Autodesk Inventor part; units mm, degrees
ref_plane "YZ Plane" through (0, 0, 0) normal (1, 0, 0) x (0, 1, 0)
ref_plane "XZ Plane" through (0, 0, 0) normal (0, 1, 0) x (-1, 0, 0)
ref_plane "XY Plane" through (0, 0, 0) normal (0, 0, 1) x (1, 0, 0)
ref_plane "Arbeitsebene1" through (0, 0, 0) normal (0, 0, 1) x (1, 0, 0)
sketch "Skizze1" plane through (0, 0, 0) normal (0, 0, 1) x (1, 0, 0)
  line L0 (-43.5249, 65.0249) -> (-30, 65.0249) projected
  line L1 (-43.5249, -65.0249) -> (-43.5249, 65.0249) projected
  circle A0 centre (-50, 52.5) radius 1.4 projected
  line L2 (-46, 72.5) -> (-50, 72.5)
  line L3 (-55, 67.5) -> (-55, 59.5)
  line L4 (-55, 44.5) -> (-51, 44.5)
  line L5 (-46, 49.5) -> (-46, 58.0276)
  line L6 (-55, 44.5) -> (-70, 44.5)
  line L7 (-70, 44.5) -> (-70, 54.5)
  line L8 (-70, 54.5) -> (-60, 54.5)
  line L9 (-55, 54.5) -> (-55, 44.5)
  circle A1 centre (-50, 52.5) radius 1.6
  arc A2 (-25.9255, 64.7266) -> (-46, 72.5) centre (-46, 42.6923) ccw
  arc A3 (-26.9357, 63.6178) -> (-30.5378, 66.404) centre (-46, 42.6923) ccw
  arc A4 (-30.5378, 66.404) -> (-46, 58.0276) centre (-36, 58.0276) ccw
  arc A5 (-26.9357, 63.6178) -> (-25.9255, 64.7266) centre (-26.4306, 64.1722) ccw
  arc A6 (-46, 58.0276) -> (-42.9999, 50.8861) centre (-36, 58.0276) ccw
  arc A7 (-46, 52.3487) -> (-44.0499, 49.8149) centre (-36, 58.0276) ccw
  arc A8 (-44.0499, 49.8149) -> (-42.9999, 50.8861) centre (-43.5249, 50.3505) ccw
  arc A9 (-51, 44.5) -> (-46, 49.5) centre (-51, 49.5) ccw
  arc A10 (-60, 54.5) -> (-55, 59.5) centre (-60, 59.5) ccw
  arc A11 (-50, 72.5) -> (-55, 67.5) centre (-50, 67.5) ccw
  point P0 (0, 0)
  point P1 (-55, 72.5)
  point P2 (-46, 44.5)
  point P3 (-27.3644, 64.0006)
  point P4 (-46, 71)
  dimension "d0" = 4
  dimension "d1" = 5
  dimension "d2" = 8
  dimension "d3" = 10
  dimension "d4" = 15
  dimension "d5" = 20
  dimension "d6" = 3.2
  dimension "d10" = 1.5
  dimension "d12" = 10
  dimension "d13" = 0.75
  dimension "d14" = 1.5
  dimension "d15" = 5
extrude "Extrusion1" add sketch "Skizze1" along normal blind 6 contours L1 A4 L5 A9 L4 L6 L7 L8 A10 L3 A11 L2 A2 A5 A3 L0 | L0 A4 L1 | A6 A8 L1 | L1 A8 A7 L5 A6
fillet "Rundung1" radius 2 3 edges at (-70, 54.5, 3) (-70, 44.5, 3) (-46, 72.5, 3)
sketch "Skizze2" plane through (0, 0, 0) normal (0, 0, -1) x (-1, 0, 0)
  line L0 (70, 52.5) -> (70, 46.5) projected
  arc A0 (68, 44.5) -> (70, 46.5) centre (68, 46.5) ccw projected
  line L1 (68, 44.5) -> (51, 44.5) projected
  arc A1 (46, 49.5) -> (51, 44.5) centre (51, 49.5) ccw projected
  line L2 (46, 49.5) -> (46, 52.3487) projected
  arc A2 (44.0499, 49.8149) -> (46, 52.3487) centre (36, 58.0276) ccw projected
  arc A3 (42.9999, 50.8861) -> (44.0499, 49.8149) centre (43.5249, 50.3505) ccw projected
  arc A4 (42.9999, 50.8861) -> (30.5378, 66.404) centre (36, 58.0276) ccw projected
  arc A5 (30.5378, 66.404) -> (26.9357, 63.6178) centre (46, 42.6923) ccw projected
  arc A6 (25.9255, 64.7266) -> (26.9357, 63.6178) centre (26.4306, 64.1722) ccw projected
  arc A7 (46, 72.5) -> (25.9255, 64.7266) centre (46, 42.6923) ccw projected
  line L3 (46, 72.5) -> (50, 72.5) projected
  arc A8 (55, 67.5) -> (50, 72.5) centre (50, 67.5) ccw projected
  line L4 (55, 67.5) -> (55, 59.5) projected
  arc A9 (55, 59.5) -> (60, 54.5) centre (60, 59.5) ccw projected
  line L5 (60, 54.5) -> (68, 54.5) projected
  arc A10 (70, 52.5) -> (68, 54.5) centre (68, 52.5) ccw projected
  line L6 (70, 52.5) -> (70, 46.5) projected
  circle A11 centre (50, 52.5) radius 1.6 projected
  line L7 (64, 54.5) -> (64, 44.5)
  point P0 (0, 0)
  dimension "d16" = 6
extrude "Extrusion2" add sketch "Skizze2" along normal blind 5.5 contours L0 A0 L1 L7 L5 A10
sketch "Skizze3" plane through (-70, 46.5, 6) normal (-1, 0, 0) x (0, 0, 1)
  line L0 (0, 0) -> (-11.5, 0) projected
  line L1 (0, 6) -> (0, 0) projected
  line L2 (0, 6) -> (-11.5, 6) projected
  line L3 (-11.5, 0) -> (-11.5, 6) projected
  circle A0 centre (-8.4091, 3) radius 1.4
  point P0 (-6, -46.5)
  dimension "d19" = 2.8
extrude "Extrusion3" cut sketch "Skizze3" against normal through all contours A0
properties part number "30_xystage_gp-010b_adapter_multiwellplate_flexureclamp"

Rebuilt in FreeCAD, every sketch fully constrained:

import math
import FreeCAD as App
import Part
import Sketcher


def edges_at(feature, points):
    """Names of the edges that pass closest to the given points."""
    edges = feature.Shape.Edges
    near = lambda p: min(range(len(edges)), key=lambda i: edges[i].distToShape(Part.Vertex(*p))[0])
    return sorted({f"Edge{near(p) + 1}" for p in points})

doc = App.newDocument("Part")
params = doc.addObject("Spreadsheet::Sheet", "Params")
for row, (alias, value) in enumerate([
    ("sketch1_radius", "10 mm"),
    ("sketch1_radius2", "5 mm"),
    ("sketch1_diameter", "3.2 mm"),
    ("sketch1_width", "4 mm"),
    ("sketch1_width2", "10 mm"),
    ("pad1_length", "6 mm"),
    ("fillet_radius", "2 mm"),
    ("sketch2_height", "6 mm"),
    ("sketch2_radius", "2 mm"),
    ("pad2_length", "5.5 mm"),
    ("sketch3_diameter", "2.8 mm"),
], start=1):
    params.set(f"A{row}", alias)
    params.set(f"B{row}", "=" + value)
    params.setAlias(f"B{row}", alias)

body = doc.addObject("PartDesign::Body", "Body")

# Sketch on XY plane
sketch1 = body.newObject("Sketcher::SketchObject", "Sketch")
sketch1.AttachmentSupport = (doc.getObject("XY_Plane"), [""])
sketch1.MapMode = "FlatFace"
sketch1.addGeometry(Part.ArcOfCircle(Part.Circle(App.Vector(-36, 58, 0), App.Vector(0, 0, 1), 10), math.radians(57), math.radians(180)), False)
sketch1.addGeometry(Part.ArcOfCircle(Part.Circle(App.Vector(-46, 42.7, 0), App.Vector(0, 0, 1), 28.3), math.radians(47.66), math.radians(56.89)), False)
sketch1.addGeometry(Part.ArcOfCircle(Part.Circle(App.Vector(-26.4, 64.2, 0), App.Vector(0, 0, 1), 0.7), math.radians(-132), math.radians(48)), False)
sketch1.addGeometry(Part.ArcOfCircle(Part.Circle(App.Vector(-46, 42.7, 0), App.Vector(0, 0, 1), 29.8), math.radians(48), math.radians(90)), False)
sketch1.addGeometry(Part.LineSegment(App.Vector(-46, 72.5, 0), App.Vector(-50, 72.5, 0)), False)
sketch1.addGeometry(Part.ArcOfCircle(Part.Circle(App.Vector(-50, 67.5, 0), App.Vector(0, 0, 1), 5), math.radians(90), math.radians(180)), False)
sketch1.addGeometry(Part.LineSegment(App.Vector(-55, 67.5, 0), App.Vector(-55, 59.5, 0)), False)
sketch1.addGeometry(Part.ArcOfCircle(Part.Circle(App.Vector(-60, 59.5, 0), App.Vector(0, 0, 1), 5), math.radians(-90), math.radians(0)), False)
sketch1.addGeometry(Part.LineSegment(App.Vector(-60, 54.5, 0), App.Vector(-70, 54.5, 0)), False)
sketch1.addGeometry(Part.LineSegment(App.Vector(-70, 54.5, 0), App.Vector(-70, 44.5, 0)), False)
sketch1.addGeometry(Part.LineSegment(App.Vector(-70, 44.5, 0), App.Vector(-51, 44.5, 0)), False)
sketch1.addGeometry(Part.ArcOfCircle(Part.Circle(App.Vector(-51, 49.5, 0), App.Vector(0, 0, 1), 5), math.radians(-90), math.radians(0)), False)
sketch1.addGeometry(Part.LineSegment(App.Vector(-46, 49.5, 0), App.Vector(-46, 52.3, 0)), False)
sketch1.addGeometry(Part.ArcOfCircle(Part.Circle(App.Vector(-36, 58, 0), App.Vector(0, 0, 1), 11.5), math.radians(-150.41), math.radians(-134.43)), False)
sketch1.addGeometry(Part.ArcOfCircle(Part.Circle(App.Vector(-43.5, 50.4, 0), App.Vector(0, 0, 1), 0.7), math.radians(-134), math.radians(46)), False)
sketch1.addGeometry(Part.ArcOfCircle(Part.Circle(App.Vector(-36, 58, 0), App.Vector(0, 0, 1), 10), math.radians(180), math.radians(226)), False)
sketch1.addGeometry(Part.Circle(App.Vector(-50, 52.5, 0), App.Vector(0, 0, 1), 1.6), False)
sketch1.addConstraint(Sketcher.Constraint("Tangent", 0, 1, 1, 2))
sketch1.addConstraint(Sketcher.Constraint("Tangent", 1, 1, 2, 1))
sketch1.addConstraint(Sketcher.Constraint("Tangent", 2, 2, 3, 1))
sketch1.addConstraint(Sketcher.Constraint("Tangent", 3, 2, 4, 1))
sketch1.addConstraint(Sketcher.Constraint("Tangent", 4, 2, 5, 1))
sketch1.addConstraint(Sketcher.Constraint("Tangent", 5, 2, 6, 1))
sketch1.addConstraint(Sketcher.Constraint("Tangent", 6, 2, 7, 2))
sketch1.addConstraint(Sketcher.Constraint("Tangent", 7, 1, 8, 1))
sketch1.addConstraint(Sketcher.Constraint("Coincident", 8, 2, 9, 1))
sketch1.addConstraint(Sketcher.Constraint("Coincident", 9, 2, 10, 1))
sketch1.addConstraint(Sketcher.Constraint("Tangent", 10, 2, 11, 1))
sketch1.addConstraint(Sketcher.Constraint("Tangent", 11, 2, 12, 1))
sketch1.addConstraint(Sketcher.Constraint("Coincident", 12, 2, 13, 1))
sketch1.addConstraint(Sketcher.Constraint("Tangent", 13, 2, 14, 1))
sketch1.addConstraint(Sketcher.Constraint("Tangent", 14, 2, 15, 2))
sketch1.addConstraint(Sketcher.Constraint("Tangent", 15, 1, 0, 2))
sketch1.addConstraint(Sketcher.Constraint("Horizontal", 4))
sketch1.addConstraint(Sketcher.Constraint("Vertical", 6))
sketch1.addConstraint(Sketcher.Constraint("Horizontal", 8))
sketch1.addConstraint(Sketcher.Constraint("Vertical", 9))
sketch1.addConstraint(Sketcher.Constraint("Horizontal", 10))
sketch1.addConstraint(Sketcher.Constraint("Vertical", 12))
sketch1.addConstraint(Sketcher.Constraint("Coincident", 3, 3, 1, 3))
sketch1.addConstraint(Sketcher.Constraint("Equal", 5, 7))
sketch1.addConstraint(Sketcher.Constraint("Equal", 7, 11))
sketch1.addConstraint(Sketcher.Constraint("Equal", 2, 14))
sketch1.addConstraint(Sketcher.Constraint("Equal", 0, 15))
sketch1.addConstraint(Sketcher.Constraint("Horizontal", 0, 3, 15, 1))
sketch1.addConstraint(Sketcher.Constraint("Vertical", 5, 3, 16, 3))
sketch1.addConstraint(Sketcher.Constraint("Vertical", 3, 2, 11, 2))
sketch1.addConstraint(Sketcher.Constraint("Vertical", 12, 2, 15, 1))
sketch1.addConstraint(Sketcher.Constraint("Equal", 8, 9))
sketch1.addConstraint(Sketcher.Constraint("Radius", 0, 10.0))
sketch1.addConstraint(Sketcher.Constraint("Radius", 5, 5.0))
sketch1.addConstraint(Sketcher.Constraint("Diameter", 16, 3.2))
sketch1.addConstraint(Sketcher.Constraint("DistanceX", 4, 2, 4, 1, 4.0))
sketch1.addConstraint(Sketcher.Constraint("DistanceX", 8, 2, 8, 1, 10.0))
sketch1.addConstraint(Sketcher.Constraint("DistanceY", 6, 2, 6, 1, 8.0))
sketch1.addConstraint(Sketcher.Constraint("Radius", 2, 0.75))
sketch1.addConstraint(Sketcher.Constraint("DistanceY", 16, 3, 4, 2, 20.0))
sketch1.addConstraint(Sketcher.Constraint("DistanceX", 0, 3, -1, 1, 36.0))
sketch1.addConstraint(Sketcher.Constraint("DistanceX", 14, 2, -1, 1, 43.0))
sketch1.addConstraint(Sketcher.Constraint("DistanceY", -1, 1, 5, 3, 67.5))
sketch1.addConstraint(Sketcher.Constraint("Radius", 1, 28.3077))
sketch1.addConstraint(Sketcher.Constraint("Radius", 13, 11.4987))
sketch1.addConstraint(Sketcher.Constraint("DistanceX", 13, 2, -1, 1, 44.05))
sketch1.addConstraint(Sketcher.Constraint("DistanceY", 1, 3, 2, 3, 21.48))
sketch1.setExpression("Constraints[32]", "Params.sketch1_radius")
sketch1.setExpression("Constraints[33]", "Params.sketch1_radius2")
sketch1.setExpression("Constraints[34]", "Params.sketch1_diameter")
sketch1.setExpression("Constraints[35]", "Params.sketch1_width")
sketch1.setExpression("Constraints[36]", "Params.sketch1_width2")
pad1 = body.newObject("PartDesign::Pad", "Pad")
pad1.Profile = sketch1
pad1.setExpression("Length", "Params.pad1_length")
doc.recompute()

fillet = body.newObject("PartDesign::Fillet", "Fillet")
fillet.Base = (pad1, edges_at(pad1, [(-70, 54.5, 3), (-70, 44.5, 3), (-46, 72.5, 3)]))
fillet.setExpression("Radius", "Params.fillet_radius")

# Sketch on XY plane
sketch2 = body.newObject("Sketcher::SketchObject", "Sketch001")
sketch2.AttachmentSupport = (doc.getObject("XY_Plane"), [""])
sketch2.MapMode = "FlatFace"
sketch2.addGeometry(Part.LineSegment(App.Vector(-70, 46.5, 0), App.Vector(-70, 52.5, 0)), False)
sketch2.addGeometry(Part.ArcOfCircle(Part.Circle(App.Vector(-68, 52.5, 0), App.Vector(0, 0, 1), 2), math.radians(90), math.radians(180)), False)
sketch2.addGeometry(Part.LineSegment(App.Vector(-68, 54.5, 0), App.Vector(-64, 54.5, 0)), False)
sketch2.addGeometry(Part.LineSegment(App.Vector(-64, 54.5, 0), App.Vector(-64, 44.5, 0)), False)
sketch2.addGeometry(Part.LineSegment(App.Vector(-64, 44.5, 0), App.Vector(-68, 44.5, 0)), False)
sketch2.addGeometry(Part.ArcOfCircle(Part.Circle(App.Vector(-68, 46.5, 0), App.Vector(0, 0, 1), 2), math.radians(180), math.radians(270)), False)
sketch2.addConstraint(Sketcher.Constraint("Tangent", 0, 2, 1, 2))
sketch2.addConstraint(Sketcher.Constraint("Tangent", 1, 1, 2, 1))
sketch2.addConstraint(Sketcher.Constraint("Coincident", 2, 2, 3, 1))
sketch2.addConstraint(Sketcher.Constraint("Coincident", 3, 2, 4, 1))
sketch2.addConstraint(Sketcher.Constraint("Tangent", 4, 2, 5, 2))
sketch2.addConstraint(Sketcher.Constraint("Tangent", 5, 1, 0, 1))
sketch2.addConstraint(Sketcher.Constraint("Vertical", 0))
sketch2.addConstraint(Sketcher.Constraint("Horizontal", 2))
sketch2.addConstraint(Sketcher.Constraint("Vertical", 3))
sketch2.addConstraint(Sketcher.Constraint("Horizontal", 4))
sketch2.addConstraint(Sketcher.Constraint("Equal", 1, 5))
sketch2.addConstraint(Sketcher.Constraint("DistanceY", 0, 1, 0, 2, 6.0))
sketch2.addConstraint(Sketcher.Constraint("Radius", 1, 2.0))
sketch2.addConstraint(Sketcher.Constraint("DistanceX", 0, 2, 2, 2, 6.0))
sketch2.addConstraint(Sketcher.Constraint("DistanceX", 1, 3, -1, 1, 68.0))
sketch2.addConstraint(Sketcher.Constraint("DistanceY", -1, 1, 1, 3, 52.5))
sketch2.setExpression("Constraints[11]", "Params.sketch2_height")
sketch2.setExpression("Constraints[12]", "Params.sketch2_radius")
pad2 = body.newObject("PartDesign::Pad", "Pad001")
pad2.Profile = sketch2
pad2.setExpression("Length", "Params.pad2_length")
pad2.Reversed = True

# Sketch on YZ plane
sketch3 = body.newObject("Sketcher::SketchObject", "Sketch002")
sketch3.AttachmentSupport = (doc.getObject("YZ_Plane"), [""])
sketch3.MapMode = "FlatFace"
sketch3.AttachmentOffset = App.Placement(App.Vector(0, 0, -70), App.Rotation())
sketch3.addGeometry(Part.Circle(App.Vector(49.5, -2.4, 0), App.Vector(0, 0, 1), 1.4), False)
sketch3.addConstraint(Sketcher.Constraint("Diameter", 0, 2.8))
sketch3.addConstraint(Sketcher.Constraint("DistanceX", -1, 1, 0, 3, 49.5))
sketch3.addConstraint(Sketcher.Constraint("DistanceY", 0, 3, -1, 1, 2.409))
sketch3.setExpression("Constraints[0]", "Params.sketch3_diameter")
pocket1 = body.newObject("PartDesign::Pocket", "Pocket")
pocket1.Profile = sketch3
pocket1.Type = "ThroughAll"
pocket1.Reversed = True

doc.recompute()
